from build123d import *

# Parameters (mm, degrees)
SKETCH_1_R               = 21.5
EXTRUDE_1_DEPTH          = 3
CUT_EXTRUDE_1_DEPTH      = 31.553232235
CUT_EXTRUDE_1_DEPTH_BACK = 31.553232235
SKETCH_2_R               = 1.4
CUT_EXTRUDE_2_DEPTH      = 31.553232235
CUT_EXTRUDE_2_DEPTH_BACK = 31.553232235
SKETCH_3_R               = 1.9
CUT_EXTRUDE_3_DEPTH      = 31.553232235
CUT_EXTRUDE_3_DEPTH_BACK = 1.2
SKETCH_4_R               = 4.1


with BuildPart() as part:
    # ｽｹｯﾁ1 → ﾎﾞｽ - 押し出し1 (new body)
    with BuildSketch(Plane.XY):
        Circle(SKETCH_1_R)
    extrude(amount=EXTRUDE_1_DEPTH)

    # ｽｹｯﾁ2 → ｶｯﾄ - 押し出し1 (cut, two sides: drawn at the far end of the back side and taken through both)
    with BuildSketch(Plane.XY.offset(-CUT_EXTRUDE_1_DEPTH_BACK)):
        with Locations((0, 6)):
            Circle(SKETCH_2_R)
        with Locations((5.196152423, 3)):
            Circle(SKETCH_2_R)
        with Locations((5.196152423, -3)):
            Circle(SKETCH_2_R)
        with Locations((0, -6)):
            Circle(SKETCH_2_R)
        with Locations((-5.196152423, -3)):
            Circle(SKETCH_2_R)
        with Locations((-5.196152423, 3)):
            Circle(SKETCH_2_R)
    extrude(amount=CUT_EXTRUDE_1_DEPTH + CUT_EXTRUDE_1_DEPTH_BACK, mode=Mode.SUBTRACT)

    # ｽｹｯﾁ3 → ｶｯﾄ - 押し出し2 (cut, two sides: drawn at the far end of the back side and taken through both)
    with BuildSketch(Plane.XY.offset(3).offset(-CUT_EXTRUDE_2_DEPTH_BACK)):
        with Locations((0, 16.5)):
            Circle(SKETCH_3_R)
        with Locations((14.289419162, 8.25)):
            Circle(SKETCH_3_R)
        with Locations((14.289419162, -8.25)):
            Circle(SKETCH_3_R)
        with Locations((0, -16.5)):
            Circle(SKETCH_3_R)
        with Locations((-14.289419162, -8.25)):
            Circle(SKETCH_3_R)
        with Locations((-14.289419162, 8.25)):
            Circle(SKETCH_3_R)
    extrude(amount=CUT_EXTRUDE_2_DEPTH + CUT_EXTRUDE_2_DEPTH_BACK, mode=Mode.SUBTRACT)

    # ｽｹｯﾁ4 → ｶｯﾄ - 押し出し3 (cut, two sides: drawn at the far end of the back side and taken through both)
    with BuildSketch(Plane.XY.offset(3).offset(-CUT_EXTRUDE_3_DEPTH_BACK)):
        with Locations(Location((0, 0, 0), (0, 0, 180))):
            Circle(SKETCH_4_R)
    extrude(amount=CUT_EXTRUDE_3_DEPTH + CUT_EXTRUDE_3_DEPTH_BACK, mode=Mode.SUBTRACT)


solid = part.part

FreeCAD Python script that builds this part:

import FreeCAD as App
import Part
import Sketcher
Q = App.Units.Quantity

doc = App.newDocument("Part")
body = doc.addObject("PartDesign::Body", "Body")

# Sketch on XY plane
sketch1 = doc.addObject("Sketcher::SketchObject", "Sketch")
body.addObject(sketch1)
sketch1.AttachmentSupport = (doc.XY_Plane, [""])
sketch1.MapMode = "FlatFace"
sketch1.addGeometry(Part.Circle(App.Vector(0, 0, 0), App.Vector(0, 0, 1), 22), False)
sketch1.addConstraint([
    Sketcher.Constraint("Coincident", 0, 3, -1, 1),
    Sketcher.Constraint("Diameter", 0, Q("43 mm")),
])
pad1 = doc.addObject("PartDesign::Pad", "Pad")
body.addObject(pad1)
pad1.Profile = sketch1
pad1.Length = 3

# Sketch on XY plane
sketch2 = doc.addObject("Sketcher::SketchObject", "Sketch001")
body.addObject(sketch2)
sketch2.AttachmentSupport = (doc.XY_Plane, [""])
sketch2.MapMode = "FlatFace"
sketch2.addGeometry([
    Part.Circle(App.Vector(0, 6, 0), App.Vector(0, 0, 1), 1.4),  # 0
    Part.Circle(App.Vector(5.2, 3, 0), App.Vector(0, 0, 1), 1.4),  # 1
    Part.Circle(App.Vector(5.2, -3, 0), App.Vector(0, 0, 1), 1.4),  # 2
    Part.Circle(App.Vector(0, -6, 0), App.Vector(0, 0, 1), 1.4),  # 3
    Part.Circle(App.Vector(-5.2, -3, 0), App.Vector(0, 0, 1), 1.4),  # 4
    Part.Circle(App.Vector(-5.2, 3, 0), App.Vector(0, 0, 1), 1.4),  # 5
], False)
sketch2.addConstraint([
    Sketcher.Constraint("Equal", 0, 1),
    Sketcher.Constraint("Equal", 1, 2),
    Sketcher.Constraint("Equal", 2, 3),
    Sketcher.Constraint("Equal", 3, 4),
    Sketcher.Constraint("Equal", 4, 5),
    Sketcher.Constraint("Symmetric", 0, 3, 3, 3, -1, 1),
    Sketcher.Constraint("Symmetric", 1, 3, 4, 3, -1, 1),
    Sketcher.Constraint("Symmetric", 2, 3, 5, 3, -1, 1),
    Sketcher.Constraint("Symmetric", 2, 3, 4, 3, -2),
    Sketcher.Constraint("PointOnObject", 0, 3, -2),
    Sketcher.Constraint("Diameter", 0, Q("2.8 mm")),
    Sketcher.Constraint("DistanceY", -1, 1, 0, 3, Q("6 mm")),
    Sketcher.Constraint("DistanceY", -1, 1, 1, 3, Q("3 mm")),
    Sketcher.Constraint("DistanceX", -1, 1, 1, 3, Q("5.196152 mm")),
])
pocket1 = doc.addObject("PartDesign::Pocket", "Pocket")
body.addObject(pocket1)
pocket1.Profile = sketch2
pocket1.Type = "ThroughAll"
pocket1.Midplane = True

# Sketch on XY plane
sketch3 = doc.addObject("Sketcher::SketchObject", "Sketch002")
body.addObject(sketch3)
sketch3.AttachmentSupport = (doc.XY_Plane, [""])
sketch3.MapMode = "FlatFace"
sketch3.AttachmentOffset = App.Placement(App.Vector(0, 0, 3), App.Rotation())
sketch3.addGeometry([
    Part.Circle(App.Vector(0, 16.5, 0), App.Vector(0, 0, 1), 1.9),  # 0
    Part.Circle(App.Vector(14.3, 8.2, 0), App.Vector(0, 0, 1), 1.9),  # 1
    Part.Circle(App.Vector(14.3, -8.2, 0), App.Vector(0, 0, 1), 1.9),  # 2
    Part.Circle(App.Vector(0, -16.5, 0), App.Vector(0, 0, 1), 1.9),  # 3
    Part.Circle(App.Vector(-14.3, -8.2, 0), App.Vector(0, 0, 1), 1.9),  # 4
    Part.Circle(App.Vector(-14.3, 8.2, 0), App.Vector(0, 0, 1), 1.9),  # 5
], False)
sketch3.addConstraint([
    Sketcher.Constraint("Equal", 0, 1),
    Sketcher.Constraint("Equal", 1, 2),
    Sketcher.Constraint("Equal", 2, 3),
    Sketcher.Constraint("Equal", 3, 4),
    Sketcher.Constraint("Equal", 4, 5),
    Sketcher.Constraint("Symmetric", 0, 3, 3, 3, -1, 1),
    Sketcher.Constraint("Symmetric", 1, 3, 4, 3, -1, 1),
    Sketcher.Constraint("Symmetric", 2, 3, 5, 3, -1, 1),
    Sketcher.Constraint("Symmetric", 2, 3, 4, 3, -2),
    Sketcher.Constraint("PointOnObject", 0, 3, -2),
    Sketcher.Constraint("Diameter", 0, Q("3.8 mm")),
    Sketcher.Constraint("DistanceY", 3, 3, 0, 3, Q("33 mm")),
    Sketcher.Constraint("DistanceY", 2, 3, 1, 3, Q("16.5 mm")),
    Sketcher.Constraint("DistanceX", -1, 1, 1, 3, Q("14.289419 mm")),
])
pocket2 = doc.addObject("PartDesign::Pocket", "Pocket001")
body.addObject(pocket2)
pocket2.Profile = sketch3
pocket2.Type = "ThroughAll"
pocket2.Midplane = True

# Sketch on XY plane
sketch4 = doc.addObject("Sketcher::SketchObject", "Sketch003")
body.addObject(sketch4)
sketch4.AttachmentSupport = (doc.XY_Plane, [""])
sketch4.MapMode = "FlatFace"
sketch4.AttachmentOffset = App.Placement(App.Vector(0, 0, 3), App.Rotation())
sketch4.addGeometry(Part.Circle(App.Vector(0, 0, 0), App.Vector(0, 0, 1), 4.1), False)
sketch4.addConstraint([
    Sketcher.Constraint("Coincident", 0, 3, -1, 1),
    Sketcher.Constraint("Diameter", 0, Q("8.2 mm")),
])
pocket3 = doc.addObject("PartDesign::Pocket", "Pocket002")
body.addObject(pocket3)
pocket3.Profile = sketch4
pocket3.Type = "TwoLengths"
pocket3.Length = 31.553232
pocket3.Length2 = 1.2
pocket3.Reversed = True

doc.recompute()
